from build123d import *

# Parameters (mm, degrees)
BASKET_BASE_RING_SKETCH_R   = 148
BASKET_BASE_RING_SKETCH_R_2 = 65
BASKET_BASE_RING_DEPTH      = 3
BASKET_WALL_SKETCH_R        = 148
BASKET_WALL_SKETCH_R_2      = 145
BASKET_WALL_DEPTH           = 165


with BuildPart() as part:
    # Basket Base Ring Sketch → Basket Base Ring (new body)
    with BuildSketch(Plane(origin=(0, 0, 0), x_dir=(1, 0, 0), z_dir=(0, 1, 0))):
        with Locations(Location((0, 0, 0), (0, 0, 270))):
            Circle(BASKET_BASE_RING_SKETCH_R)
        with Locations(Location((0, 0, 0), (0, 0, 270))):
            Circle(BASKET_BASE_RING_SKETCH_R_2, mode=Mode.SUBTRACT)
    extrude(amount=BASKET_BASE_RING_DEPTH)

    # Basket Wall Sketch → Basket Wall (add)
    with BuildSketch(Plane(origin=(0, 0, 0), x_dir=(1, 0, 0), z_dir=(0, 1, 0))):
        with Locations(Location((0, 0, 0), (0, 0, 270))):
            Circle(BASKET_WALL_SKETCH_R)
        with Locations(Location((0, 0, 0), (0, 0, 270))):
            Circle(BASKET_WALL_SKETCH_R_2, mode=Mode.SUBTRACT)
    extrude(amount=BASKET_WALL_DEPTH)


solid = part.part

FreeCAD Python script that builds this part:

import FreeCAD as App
import Part
import Sketcher

V = App.Vector

doc = App.newDocument("Part")
params = doc.addObject("Spreadsheet::Sheet", "Params")
for row, (alias, value) in enumerate([
    ("sketch1_diameter", "296 mm"),
    ("sketch1_diameter2", "130 mm"),
    ("pad1_length", "3 mm"),
    ("sketch2_diameter", "296 mm"),
    ("sketch2_diameter2", "290 mm"),
    ("pad2_length", "165 mm"),
], start=1):
    params.set(f"A{row}", alias)
    params.set(f"B{row}", "=" + value)
    params.setAlias(f"B{row}", alias)

body = doc.addObject("PartDesign::Body", "Body")

# Sketch on XZ plane
sketch1 = body.newObject("Sketcher::SketchObject", "Sketch")
sketch1.AttachmentSupport = (doc.getObject("XZ_Plane"), [""])
sketch1.MapMode = "FlatFace"
sketch1.addGeometry([
    Part.Circle(V(0, 0, 0), V(0, 0, 1), 148),
    Part.Circle(V(0, 0, 0), V(0, 0, 1), 65),
], False)
sketch1.addConstraint([
    Sketcher.Constraint("Coincident", 0, 3, -1, 1),
    Sketcher.Constraint("Coincident", 1, 3, -1, 1),
    Sketcher.Constraint("Diameter", 0, 296.0),
    Sketcher.Constraint("Diameter", 1, 130.0),
])
sketch1.setExpression("Constraints[2]", "Params.sketch1_diameter")
sketch1.setExpression("Constraints[3]", "Params.sketch1_diameter2")
pad1 = body.newObject("PartDesign::Pad", "Pad")
pad1.Profile = sketch1
pad1.setExpression("Length", "Params.pad1_length")
pad1.Reversed = True

# Sketch on XZ plane
sketch2 = body.newObject("Sketcher::SketchObject", "Sketch001")
sketch2.AttachmentSupport = (doc.getObject("XZ_Plane"), [""])
sketch2.MapMode = "FlatFace"
sketch2.addGeometry([
    Part.Circle(V(0, 0, 0), V(0, 0, 1), 148),
    Part.Circle(V(0, 0, 0), V(0, 0, 1), 145),
], False)
sketch2.addConstraint([
    Sketcher.Constraint("Coincident", 0, 3, -1, 1),
    Sketcher.Constraint("Coincident", 1, 3, -1, 1),
    Sketcher.Constraint("Diameter", 0, 296.0),
    Sketcher.Constraint("Diameter", 1, 290.0),
])
sketch2.setExpression("Constraints[2]", "Params.sketch2_diameter")
sketch2.setExpression("Constraints[3]", "Params.sketch2_diameter2")
pad2 = body.newObject("PartDesign::Pad", "Pad001")
pad2.Profile = sketch2
pad2.setExpression("Length", "Params.pad2_length")
pad2.Reversed = True

doc.recompute()
